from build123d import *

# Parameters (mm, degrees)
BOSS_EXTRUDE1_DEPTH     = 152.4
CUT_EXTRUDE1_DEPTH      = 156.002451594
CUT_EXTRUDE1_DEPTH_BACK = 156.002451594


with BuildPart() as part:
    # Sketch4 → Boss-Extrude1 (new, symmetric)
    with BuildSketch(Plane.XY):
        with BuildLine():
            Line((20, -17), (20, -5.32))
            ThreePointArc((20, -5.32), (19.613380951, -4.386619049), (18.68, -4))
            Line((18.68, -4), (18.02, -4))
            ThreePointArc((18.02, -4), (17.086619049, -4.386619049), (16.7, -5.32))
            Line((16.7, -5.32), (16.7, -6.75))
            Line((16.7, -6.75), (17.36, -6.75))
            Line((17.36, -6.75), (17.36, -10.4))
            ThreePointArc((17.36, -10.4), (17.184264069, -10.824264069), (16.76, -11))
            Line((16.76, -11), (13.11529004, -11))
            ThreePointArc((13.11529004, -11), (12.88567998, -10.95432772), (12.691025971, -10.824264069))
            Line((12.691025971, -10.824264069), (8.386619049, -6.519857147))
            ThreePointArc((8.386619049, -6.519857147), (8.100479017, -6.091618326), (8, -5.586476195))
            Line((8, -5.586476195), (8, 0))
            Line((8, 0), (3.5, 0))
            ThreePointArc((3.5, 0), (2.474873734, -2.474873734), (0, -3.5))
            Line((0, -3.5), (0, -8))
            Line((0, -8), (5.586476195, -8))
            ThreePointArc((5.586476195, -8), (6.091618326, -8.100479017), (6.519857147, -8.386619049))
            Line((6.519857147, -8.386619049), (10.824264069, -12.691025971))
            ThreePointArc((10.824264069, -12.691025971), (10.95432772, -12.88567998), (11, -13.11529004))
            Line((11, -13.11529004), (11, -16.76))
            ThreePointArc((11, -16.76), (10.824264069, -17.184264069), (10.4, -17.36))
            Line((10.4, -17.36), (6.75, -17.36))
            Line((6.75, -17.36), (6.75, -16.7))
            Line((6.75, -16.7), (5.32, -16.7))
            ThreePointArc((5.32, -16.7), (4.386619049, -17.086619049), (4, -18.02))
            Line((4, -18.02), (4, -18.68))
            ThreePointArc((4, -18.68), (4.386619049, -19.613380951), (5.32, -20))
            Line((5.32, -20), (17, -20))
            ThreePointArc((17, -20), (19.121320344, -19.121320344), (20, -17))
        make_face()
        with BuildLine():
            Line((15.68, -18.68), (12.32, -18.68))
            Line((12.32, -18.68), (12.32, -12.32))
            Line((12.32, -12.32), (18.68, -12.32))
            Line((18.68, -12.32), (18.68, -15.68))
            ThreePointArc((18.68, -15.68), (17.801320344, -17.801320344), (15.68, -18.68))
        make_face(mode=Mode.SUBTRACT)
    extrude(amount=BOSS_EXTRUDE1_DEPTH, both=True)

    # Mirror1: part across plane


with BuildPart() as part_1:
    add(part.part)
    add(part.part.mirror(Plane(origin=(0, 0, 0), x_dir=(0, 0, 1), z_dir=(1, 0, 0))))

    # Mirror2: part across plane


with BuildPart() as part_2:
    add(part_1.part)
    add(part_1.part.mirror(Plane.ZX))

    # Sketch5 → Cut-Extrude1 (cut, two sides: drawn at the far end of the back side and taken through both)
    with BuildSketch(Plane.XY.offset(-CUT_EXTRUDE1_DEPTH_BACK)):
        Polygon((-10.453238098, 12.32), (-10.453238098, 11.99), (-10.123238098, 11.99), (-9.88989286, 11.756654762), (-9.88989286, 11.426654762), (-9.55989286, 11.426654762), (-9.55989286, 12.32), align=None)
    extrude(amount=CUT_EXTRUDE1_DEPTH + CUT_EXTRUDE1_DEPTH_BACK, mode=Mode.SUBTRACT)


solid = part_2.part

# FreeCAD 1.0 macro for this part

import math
import FreeCAD as App
import Part
import Sketcher


def add_polygon(sketch, points):
    """Adds a closed chain of lines whose ends are joined by coincident constraints."""
    first, n = sketch.GeometryCount, len(points)
    for a, b in zip(points, points[1:] + points[:1]):
        sketch.addGeometry(Part.LineSegment(App.Vector(*a, 0), App.Vector(*b, 0)), False)
    for i in range(n):
        sketch.addConstraint(Sketcher.Constraint("Coincident", first + i, 2, first + (i + 1) % n, 1))

doc = App.newDocument("Part")
params = doc.addObject("Spreadsheet::Sheet", "Params")
for row, (alias, value) in enumerate([
    ("sketch1_radius", "3 mm"),
    ("sketch1_radius2", "0.6 mm"),
    ("sketch1_radius3", "3.5 mm"),
    ("sketch1_radius4", "1.32 mm"),
    ("sketch1_width", "4.5 mm"),
    ("pad1_length", "304.8 mm"),
    ("sketch2_width", "0.33 mm"),
    ("sketch2_length", "0.33 mm"),
], start=1):
    params.set(f"A{row}", alias)
    params.set(f"B{row}", "=" + value)
    params.setAlias(f"B{row}", alias)

body = doc.addObject("PartDesign::Body", "Body")

# Sketch on XY plane
sketch1 = body.newObject("Sketcher::SketchObject", "Sketch")
sketch1.AttachmentSupport = (doc.getObject("XY_Plane"), [""])
sketch1.MapMode = "FlatFace"
sketch1.addGeometry([
    Part.LineSegment(App.Vector(20, -17, 0), App.Vector(20, -5.32, 0)),  # 0
    Part.ArcOfCircle(Part.Circle(App.Vector(18.68, -5.32, 0), App.Vector(0, 0, 1), 1.32), math.radians(0), math.radians(90)),  # 1
    Part.LineSegment(App.Vector(18.68, -4, 0), App.Vector(18.02, -4, 0)),  # 2
    Part.ArcOfCircle(Part.Circle(App.Vector(18.02, -5.32, 0), App.Vector(0, 0, 1), 1.32), math.radians(90), math.radians(180)),  # 3
    Part.LineSegment(App.Vector(16.7, -5.32, 0), App.Vector(16.7, -6.75, 0)),  # 4
    Part.LineSegment(App.Vector(16.7, -6.75, 0), App.Vector(17.36, -6.75, 0)),  # 5
    Part.LineSegment(App.Vector(17.36, -6.75, 0), App.Vector(17.36, -10.4, 0)),  # 6
    Part.ArcOfCircle(Part.Circle(App.Vector(16.76, -10.4, 0), App.Vector(0, 0, 1), 0.6), math.radians(-90), math.radians(0)),  # 7
    Part.LineSegment(App.Vector(16.76, -11, 0), App.Vector(13.11529, -11, 0)),  # 8
    Part.ArcOfCircle(Part.Circle(App.Vector(13.11529, -10.4, 0), App.Vector(0, 0, 1), 0.6), math.radians(-135), math.radians(-90)),  # 9
    Part.LineSegment(App.Vector(12.691026, -10.824264, 0), App.Vector(8.386619, -6.519857, 0)),  # 10
    Part.ArcOfCircle(Part.Circle(App.Vector(9.32, -5.586476, 0), App.Vector(0, 0, 1), 1.32), math.radians(180), math.radians(225)),  # 11
    Part.LineSegment(App.Vector(8, -5.586476, 0), App.Vector(8, 0, 0)),  # 12
    Part.LineSegment(App.Vector(8, 0, 0), App.Vector(3.5, 0, 0)),  # 13
    Part.ArcOfCircle(Part.Circle(App.Vector(0, 0, 0), App.Vector(0, 0, 1), 3.5), math.radians(-90), math.radians(0)),  # 14
    Part.LineSegment(App.Vector(0, -3.5, 0), App.Vector(0, -8, 0)),  # 15
    Part.LineSegment(App.Vector(0, -8, 0), App.Vector(5.586476, -8, 0)),  # 16
    Part.ArcOfCircle(Part.Circle(App.Vector(5.586476, -9.32, 0), App.Vector(0, 0, 1), 1.32), math.radians(45), math.radians(90)),  # 17
    Part.LineSegment(App.Vector(6.519857, -8.386619, 0), App.Vector(10.824264, -12.691026, 0)),  # 18
    Part.ArcOfCircle(Part.Circle(App.Vector(10.4, -13.11529, 0), App.Vector(0, 0, 1), 0.6), math.radians(0), math.radians(45)),  # 19
    Part.LineSegment(App.Vector(11, -13.11529, 0), App.Vector(11, -16.76, 0)),  # 20
    Part.ArcOfCircle(Part.Circle(App.Vector(10.4, -16.76, 0), App.Vector(0, 0, 1), 0.6), math.radians(-90), math.radians(0)),  # 21
    Part.LineSegment(App.Vector(10.4, -17.36, 0), App.Vector(6.75, -17.36, 0)),  # 22
    Part.LineSegment(App.Vector(6.75, -17.36, 0), App.Vector(6.75, -16.7, 0)),  # 23
    Part.LineSegment(App.Vector(6.75, -16.7, 0), App.Vector(5.32, -16.7, 0)),  # 24
    Part.ArcOfCircle(Part.Circle(App.Vector(5.32, -18.02, 0), App.Vector(0, 0, 1), 1.32), math.radians(90), math.radians(180)),  # 25
    Part.LineSegment(App.Vector(4, -18.02, 0), App.Vector(4, -18.68, 0)),  # 26
    Part.ArcOfCircle(Part.Circle(App.Vector(5.32, -18.68, 0), App.Vector(0, 0, 1), 1.32), math.radians(-180), math.radians(-90)),  # 27
    Part.LineSegment(App.Vector(5.32, -20, 0), App.Vector(17, -20, 0)),  # 28
    Part.ArcOfCircle(Part.Circle(App.Vector(17, -17, 0), App.Vector(0, 0, 1), 3), math.radians(-90), math.radians(0)),  # 29
    Part.ArcOfCircle(Part.Circle(App.Vector(15.68, -15.68, 0), App.Vector(0, 0, 1), 3), math.radians(-90), math.radians(0)),  # 30
    Part.LineSegment(App.Vector(15.68, -18.68, 0), App.Vector(12.32, -18.68, 0)),  # 31
    Part.LineSegment(App.Vector(12.32, -18.68, 0), App.Vector(12.32, -12.32, 0)),  # 32
    Part.LineSegment(App.Vector(12.32, -12.32, 0), App.Vector(18.68, -12.32, 0)),  # 33
    Part.LineSegment(App.Vector(18.68, -12.32, 0), App.Vector(18.68, -15.68, 0)),  # 34
], False)
sketch1.addConstraint([
    Sketcher.Constraint("Tangent", 0, 2, 1, 1),
    Sketcher.Constraint("Tangent", 1, 2, 2, 1),
    Sketcher.Constraint("Tangent", 2, 2, 3, 1),
    Sketcher.Constraint("Tangent", 3, 2, 4, 1),
    Sketcher.Constraint("Coincident", 4, 2, 5, 1),
    Sketcher.Constraint("Coincident", 5, 2, 6, 1),
    Sketcher.Constraint("Tangent", 6, 2, 7, 2),
    Sketcher.Constraint("Tangent", 7, 1, 8, 1),
    Sketcher.Constraint("Tangent", 8, 2, 9, 2),
    Sketcher.Constraint("Tangent", 9, 1, 10, 1),
    Sketcher.Constraint("Tangent", 10, 2, 11, 2),
    Sketcher.Constraint("Tangent", 11, 1, 12, 1),
    Sketcher.Constraint("Coincident", 12, 2, 13, 1),
    Sketcher.Constraint("Coincident", 13, 2, 14, 2),
    Sketcher.Constraint("Coincident", 14, 1, 15, 1),
    Sketcher.Constraint("Coincident", 15, 2, 16, 1),
    Sketcher.Constraint("Tangent", 16, 2, 17, 2),
    Sketcher.Constraint("Tangent", 17, 1, 18, 1),
    Sketcher.Constraint("Tangent", 18, 2, 19, 2),
    Sketcher.Constraint("Tangent", 19, 1, 20, 1),
    Sketcher.Constraint("Tangent", 20, 2, 21, 2),
    Sketcher.Constraint("Tangent", 21, 1, 22, 1),
    Sketcher.Constraint("Coincident", 22, 2, 23, 1),
    Sketcher.Constraint("Coincident", 23, 2, 24, 1),
    Sketcher.Constraint("Tangent", 24, 2, 25, 1),
    Sketcher.Constraint("Tangent", 25, 2, 26, 1),
    Sketcher.Constraint("Tangent", 26, 2, 27, 1),
    Sketcher.Constraint("Tangent", 27, 2, 28, 1),
    Sketcher.Constraint("Tangent", 28, 2, 29, 1),
    Sketcher.Constraint("Tangent", 29, 2, 0, 1),
    Sketcher.Constraint("Tangent", 30, 1, 31, 1),
    Sketcher.Constraint("Coincident", 31, 2, 32, 1),
    Sketcher.Constraint("Coincident", 32, 2, 33, 1),
    Sketcher.Constraint("Coincident", 33, 2, 34, 1),
    Sketcher.Constraint("Tangent", 34, 2, 30, 2),
    Sketcher.Constraint("Vertical", 0),
    Sketcher.Constraint("Horizontal", 2),
    Sketcher.Constraint("Vertical", 4),
    Sketcher.Constraint("Horizontal", 5),
    Sketcher.Constraint("Vertical", 6),
    Sketcher.Constraint("Horizontal", 8),
    Sketcher.Constraint("Vertical", 12),
    Sketcher.Constraint("Horizontal", 13),
    Sketcher.Constraint("Vertical", 15),
    Sketcher.Constraint("Horizontal", 16),
    Sketcher.Constraint("Vertical", 20),
    Sketcher.Constraint("Horizontal", 22),
    Sketcher.Constraint("Vertical", 23),
    Sketcher.Constraint("Horizontal", 24),
    Sketcher.Constraint("Vertical", 26),
    Sketcher.Constraint("Horizontal", 28),
    Sketcher.Constraint("Horizontal", 31),
    Sketcher.Constraint("Vertical", 32),
    Sketcher.Constraint("Horizontal", 33),
    Sketcher.Constraint("Vertical", 34),
    Sketcher.Constraint("Coincident", 14, 3, -1, 1),
    Sketcher.Constraint("Equal", 1, 3),
    Sketcher.Constraint("Equal", 7, 9),
    Sketcher.Constraint("Equal", 3, 11),
    Sketcher.Constraint("Equal", 11, 17),
    Sketcher.Constraint("Equal", 9, 19),
    Sketcher.Constraint("Equal", 19, 21),
    Sketcher.Constraint("Equal", 17, 25),
    Sketcher.Constraint("Equal", 25, 27),
    Sketcher.Constraint("Equal", 29, 30),
    Sketcher.Constraint("PointOnObject", 12, 2, -1),
    Sketcher.Constraint("PointOnObject", 14, 1, -2),
    Sketcher.Constraint("Parallel", 10, 18),
    Sketcher.Constraint("Horizontal", 26, 2, 30, 1),
    Sketcher.Constraint("Vertical", 1, 2, 33, 2),
    Sketcher.Constraint("Equal", 2, 5),
    Sketcher.Constraint("Equal", 28, 0),
    Sketcher.Constraint("Equal", 24, 4),
    Sketcher.Constraint("Equal", 22, 6),
    Sketcher.Constraint("Equal", 16, 12),
    Sketcher.Constraint("Equal", 13, 15),
    Sketcher.Constraint("Equal", 8, 20),
    Sketcher.Constraint("Equal", 5, 23),
    Sketcher.Constraint("Equal", 23, 26),
    Sketcher.Constraint("Equal", 33, 32),
    Sketcher.Constraint("Equal", 10, 18),
    Sketcher.Constraint("Radius", 29, 3.0),
    Sketcher.Constraint("Radius", 7, 0.6),
    Sketcher.Constraint("Radius", 14, 3.5),
    Sketcher.Constraint("Radius", 1, 1.32),
    Sketcher.Constraint("DistanceX", 13, 2, 13, 1, 4.5),
    Sketcher.Constraint("DistanceX", -1, 1, 29, 3, 17.0),
    Sketcher.Constraint("DistanceY", 1, 2, -1, 1, 4.0),
    Sketcher.Constraint("DistanceY", 7, 1, -1, 1, 11.0),
    Sketcher.Constraint("DistanceX", 2, 2, 2, 1, 0.66),
    Sketcher.Constraint("DistanceX", 22, 2, 22, 1, 3.65),
    Sketcher.Constraint("DistanceX", 31, 2, 31, 1, 3.36),
    Sketcher.Constraint("DistanceX", 8, 2, 8, 1, 3.64471),
])
sketch1.setExpression("Constraints[81]", "Params.sketch1_radius")
sketch1.setExpression("Constraints[82]", "Params.sketch1_radius2")
sketch1.setExpression("Constraints[83]", "Params.sketch1_radius3")
sketch1.setExpression("Constraints[84]", "Params.sketch1_radius4")
sketch1.setExpression("Constraints[85]", "Params.sketch1_width")
pad1 = body.newObject("PartDesign::Pad", "Pad")
pad1.Profile = sketch1
pad1.setExpression("Length", "Params.pad1_length")
pad1.Midplane = True
body2 = doc.addObject("PartDesign::Body", "Body001")
doc.recompute()

body2.BaseFeature = body
doc.recompute()

mirroring = doc.addObject("Part::Mirroring", "Mirroring")
mirroring.Source = body
mirroring.Base = App.Vector(0, 0, 0)
mirroring.Normal = App.Vector(1, 0, 0)
body3 = doc.addObject("PartDesign::Body", "Body002")
body3.BaseFeature = mirroring
boolean = body2.newObject("PartDesign::Boolean", "Boolean")
boolean.Type = "Fuse"
boolean.addObjects([body3])
doc.recompute()
body4 = doc.addObject("PartDesign::Body", "Body003")
doc.recompute()

body4.BaseFeature = body2
doc.recompute()

mirroring2 = doc.addObject("Part::Mirroring", "Mirroring001")
mirroring2.Source = body2
mirroring2.Base = App.Vector(0, 0, 0)
mirroring2.Normal = App.Vector(0, 1, 0)
body5 = doc.addObject("PartDesign::Body", "Body004")
body5.BaseFeature = mirroring2
boolean2 = body4.newObject("PartDesign::Boolean", "Boolean001")
boolean2.Type = "Fuse"
boolean2.addObjects([body5])
doc.recompute()

# Sketch on XY plane
sketch2 = body4.newObject("Sketcher::SketchObject", "Sketch001")
sketch2.AttachmentSupport = (doc.getObject("XY_Plane003"), [""])
sketch2.MapMode = "FlatFace"
add_polygon(sketch2, [(-10.453238, 12.32), (-10.453238, 11.99), (-10.123238, 11.99), (-9.889893, 11.756655), (-9.889893, 11.426655), (-9.559893, 11.426655), (-9.559893, 12.32)])  # lines 0-6
sketch2.addConstraint([
    Sketcher.Constraint("Vertical", 0),
    Sketcher.Constraint("Horizontal", 1),
    Sketcher.Constraint("Vertical", 3),
    Sketcher.Constraint("Horizontal", 4),
    Sketcher.Constraint("Vertical", 5),
    Sketcher.Constraint("Horizontal", 6),
    Sketcher.Constraint("Equal", 1, 4),
    Sketcher.Constraint("Equal", 4, 0),
    Sketcher.Constraint("Equal", 0, 3),
    Sketcher.Constraint("Equal", 6, 5),
    Sketcher.Constraint("DistanceX", 1, 1, 1, 2, 0.33),
    Sketcher.Constraint("Distance", 2, 0.33),
    Sketcher.Constraint("DistanceY", -1, 1, 0, 2, 11.99),
    Sketcher.Constraint("DistanceX", 0, 2, -1, 1, 10.453238),
])
sketch2.setExpression("Constraints[17]", "Params.sketch2_width")
sketch2.setExpression("Constraints[18]", "Params.sketch2_length")
pocket1 = body4.newObject("PartDesign::Pocket", "Pocket")
pocket1.Profile = sketch2
pocket1.Type = "ThroughAll"
pocket1.Midplane = True
mirroring.Visibility = False
mirroring2.Visibility = False

doc.recompute()
